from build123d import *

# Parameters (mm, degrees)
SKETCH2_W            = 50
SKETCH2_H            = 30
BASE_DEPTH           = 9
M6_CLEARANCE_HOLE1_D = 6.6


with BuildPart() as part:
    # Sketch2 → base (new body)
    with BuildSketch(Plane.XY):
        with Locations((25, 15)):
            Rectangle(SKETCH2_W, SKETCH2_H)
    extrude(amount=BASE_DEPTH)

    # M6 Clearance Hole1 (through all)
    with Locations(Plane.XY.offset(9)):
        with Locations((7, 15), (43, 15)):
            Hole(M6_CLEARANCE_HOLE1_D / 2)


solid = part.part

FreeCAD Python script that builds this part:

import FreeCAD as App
import Part
import Sketcher


def add_polygon(sketch, points):
    """Adds a closed chain of lines whose ends are joined by coincident constraints."""
    first, n = sketch.GeometryCount, len(points)
    for a, b in zip(points, points[1:] + points[:1]):
        sketch.addGeometry(Part.LineSegment(App.Vector(*a, 0), App.Vector(*b, 0)), False)
    for i in range(n):
        sketch.addConstraint(Sketcher.Constraint("Coincident", first + i, 2, first + (i + 1) % n, 1))

doc = App.newDocument("Part")
body = doc.addObject("PartDesign::Body", "Body")

sketch1 = body.newObject("Sketcher::SketchObject", "Sketch")
sketch1.AttachmentSupport = (doc.getObject("XY_Plane"), [""])
sketch1.MapMode = "FlatFace"
add_polygon(sketch1, [(0, 30), (0, 0), (50, 0), (50, 30)])
sketch1.addConstraint(Sketcher.Constraint("Vertical", 0))
sketch1.addConstraint(Sketcher.Constraint("Horizontal", 1))
sketch1.addConstraint(Sketcher.Constraint("Vertical", 2))
sketch1.addConstraint(Sketcher.Constraint("Horizontal", 3))
sketch1.addConstraint(Sketcher.Constraint("Coincident", 0, 2, -1, 1))
sketch1.addConstraint(Sketcher.Constraint("DistanceX", 1, 1, 1, 2, 50.0))
sketch1.addConstraint(Sketcher.Constraint("DistanceY", 0, 2, 0, 1, 30.0))
pad1 = body.newObject("PartDesign::Pad", "Pad")
pad1.Profile = sketch1
pad1.Length = 9

sketch2 = body.newObject("Sketcher::SketchObject", "Sketch001")
sketch2.AttachmentSupport = (doc.getObject("XY_Plane"), [""])
sketch2.MapMode = "FlatFace"
sketch2.AttachmentOffset = App.Placement(App.Vector(0, 0, 9), App.Rotation())
sketch2.addGeometry(Part.Circle(App.Vector(7, 15, 0), App.Vector(0, 0, 1), 3.3), False)
sketch2.addGeometry(Part.Circle(App.Vector(43, 15, 0), App.Vector(0, 0, 1), 3.3), False)
sketch2.addConstraint(Sketcher.Constraint("Equal", 0, 1))
sketch2.addConstraint(Sketcher.Constraint("Horizontal", 0, 3, 1, 3))
sketch2.addConstraint(Sketcher.Constraint("Diameter", 0, 6.6))
sketch2.addConstraint(Sketcher.Constraint("DistanceX", -1, 1, 0, 3, 7.0))
sketch2.addConstraint(Sketcher.Constraint("DistanceY", -1, 1, 0, 3, 15.0))
sketch2.addConstraint(Sketcher.Constraint("DistanceX", -1, 1, 1, 3, 43.0))
doc.recompute()
hole = body.newObject("PartDesign::Hole", "Hole")
hole.Profile = sketch2
hole.ThreadType = "None"
hole.Diameter = 6.6
hole.DepthType = "ThroughAll"

doc.recompute()
